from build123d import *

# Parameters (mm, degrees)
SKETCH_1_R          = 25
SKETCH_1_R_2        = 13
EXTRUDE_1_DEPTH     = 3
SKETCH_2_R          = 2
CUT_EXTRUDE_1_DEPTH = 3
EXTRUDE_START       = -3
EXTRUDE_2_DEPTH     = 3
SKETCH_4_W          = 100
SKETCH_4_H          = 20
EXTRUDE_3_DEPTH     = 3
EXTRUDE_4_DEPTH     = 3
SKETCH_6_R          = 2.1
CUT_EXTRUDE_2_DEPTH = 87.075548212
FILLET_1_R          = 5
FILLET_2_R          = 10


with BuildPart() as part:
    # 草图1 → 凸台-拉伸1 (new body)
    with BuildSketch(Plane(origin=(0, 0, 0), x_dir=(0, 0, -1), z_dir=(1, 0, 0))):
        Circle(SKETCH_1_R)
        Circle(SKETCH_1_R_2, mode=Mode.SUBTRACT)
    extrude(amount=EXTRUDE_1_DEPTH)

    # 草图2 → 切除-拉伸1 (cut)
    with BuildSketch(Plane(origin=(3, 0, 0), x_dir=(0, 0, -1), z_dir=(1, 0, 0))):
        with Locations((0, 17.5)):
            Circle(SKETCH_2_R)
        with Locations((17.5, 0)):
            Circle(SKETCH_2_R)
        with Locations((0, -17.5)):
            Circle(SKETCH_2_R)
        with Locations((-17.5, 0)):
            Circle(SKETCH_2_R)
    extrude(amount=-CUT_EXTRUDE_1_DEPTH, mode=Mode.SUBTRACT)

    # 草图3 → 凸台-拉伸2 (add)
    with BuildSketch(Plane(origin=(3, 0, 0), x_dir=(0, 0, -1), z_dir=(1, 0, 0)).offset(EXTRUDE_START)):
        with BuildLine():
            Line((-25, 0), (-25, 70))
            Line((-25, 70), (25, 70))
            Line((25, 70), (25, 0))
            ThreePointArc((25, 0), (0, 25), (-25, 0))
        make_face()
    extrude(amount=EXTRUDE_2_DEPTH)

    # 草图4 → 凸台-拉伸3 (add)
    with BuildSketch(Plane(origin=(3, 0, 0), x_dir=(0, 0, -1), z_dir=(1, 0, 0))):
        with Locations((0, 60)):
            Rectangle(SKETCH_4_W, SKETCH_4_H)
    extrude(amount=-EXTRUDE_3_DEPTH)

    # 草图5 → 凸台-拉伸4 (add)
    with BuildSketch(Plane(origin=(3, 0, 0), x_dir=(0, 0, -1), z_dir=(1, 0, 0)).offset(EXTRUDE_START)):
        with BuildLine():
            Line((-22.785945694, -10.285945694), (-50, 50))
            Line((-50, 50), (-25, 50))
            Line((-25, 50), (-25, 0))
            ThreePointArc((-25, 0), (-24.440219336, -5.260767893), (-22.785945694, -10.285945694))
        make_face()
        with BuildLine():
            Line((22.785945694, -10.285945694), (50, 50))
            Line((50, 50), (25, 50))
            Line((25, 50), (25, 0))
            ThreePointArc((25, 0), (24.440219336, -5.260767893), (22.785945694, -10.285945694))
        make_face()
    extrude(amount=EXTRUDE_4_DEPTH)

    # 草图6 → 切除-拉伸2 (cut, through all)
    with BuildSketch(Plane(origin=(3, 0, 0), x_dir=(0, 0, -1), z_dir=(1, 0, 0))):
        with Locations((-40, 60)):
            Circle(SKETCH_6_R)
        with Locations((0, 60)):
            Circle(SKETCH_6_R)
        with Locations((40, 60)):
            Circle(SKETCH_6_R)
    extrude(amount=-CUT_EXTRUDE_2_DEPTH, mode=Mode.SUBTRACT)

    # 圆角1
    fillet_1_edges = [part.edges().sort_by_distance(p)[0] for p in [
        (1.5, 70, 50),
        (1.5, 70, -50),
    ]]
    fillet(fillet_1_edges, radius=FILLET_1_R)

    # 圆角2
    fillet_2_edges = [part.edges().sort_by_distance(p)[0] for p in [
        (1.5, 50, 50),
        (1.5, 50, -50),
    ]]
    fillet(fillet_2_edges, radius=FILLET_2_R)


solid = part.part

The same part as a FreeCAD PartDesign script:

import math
import FreeCAD as App
import Part
import Sketcher
Q = App.Units.Quantity


def edges_at(feature, points):
    """Names of the edges that pass closest to the given points."""
    edges = feature.Shape.Edges
    near = lambda p: min(range(len(edges)), key=lambda i: edges[i].distToShape(Part.Vertex(*p))[0])
    return sorted({f"Edge{near(p) + 1}" for p in points})

doc = App.newDocument("Part")
body = doc.addObject("PartDesign::Body", "Body")

sketch1 = doc.addObject("Sketcher::SketchObject", "Sketch")
body.addObject(sketch1)
sketch1.AttachmentSupport = (doc.YZ_Plane, [""])
sketch1.MapMode = "FlatFace"
sketch1.addGeometry([
    Part.Circle(App.Vector(0, 0, 0), App.Vector(0, 0, 1), 25),
    Part.Circle(App.Vector(0, 0, 0), App.Vector(0, 0, 1), 13),
], False)
sketch1.addConstraint([
    Sketcher.Constraint("Coincident", 0, 3, -1, 1),
    Sketcher.Constraint("Coincident", 1, 3, -1, 1),
    Sketcher.Constraint("Diameter", 0, Q("50 mm")),
    Sketcher.Constraint("Diameter", 1, Q("26 mm")),
])
pad1 = doc.addObject("PartDesign::Pad", "Pad")
body.addObject(pad1)
pad1.Profile = sketch1
pad1.Length = 3

sketch2 = doc.addObject("Sketcher::SketchObject", "Sketch001")
body.addObject(sketch2)
sketch2.AttachmentSupport = (doc.YZ_Plane, [""])
sketch2.MapMode = "FlatFace"
sketch2.AttachmentOffset = App.Placement(App.Vector(0, 0, 3), App.Rotation())
sketch2.addGeometry([
    Part.Circle(App.Vector(17.5, 0, 0), App.Vector(0, 0, 1), 2),
    Part.Circle(App.Vector(0, -17.5, 0), App.Vector(0, 0, 1), 2),
    Part.Circle(App.Vector(-17.5, 0, 0), App.Vector(0, 0, 1), 2),
    Part.Circle(App.Vector(0, 17.5, 0), App.Vector(0, 0, 1), 2),
], False)
sketch2.addConstraint([
    Sketcher.Constraint("Equal", 0, 1),
    Sketcher.Constraint("Equal", 1, 2),
    Sketcher.Constraint("Equal", 2, 3),
    Sketcher.Constraint("Symmetric", 0, 3, 2, 3, -1, 1),
    Sketcher.Constraint("Symmetric", 1, 3, 3, 3, -1, 1),
    Sketcher.Constraint("PointOnObject", 0, 3, -1),
    Sketcher.Constraint("PointOnObject", 1, 3, -2),
    Sketcher.Constraint("Diameter", 0, Q("4 mm")),
    Sketcher.Constraint("DistanceX", 2, 3, 0, 3, Q("35 mm")),
    Sketcher.Constraint("DistanceY", 1, 3, 3, 3, Q("35 mm")),
])
pocket1 = doc.addObject("PartDesign::Pocket", "Pocket")
body.addObject(pocket1)
pocket1.Profile = sketch2
pocket1.Length = 3

sketch3 = doc.addObject("Sketcher::SketchObject", "Sketch002")
body.addObject(sketch3)
sketch3.AttachmentSupport = (doc.YZ_Plane, [""])
sketch3.MapMode = "FlatFace"
sketch3.addGeometry([
    Part.LineSegment(App.Vector(70, 25, 0), App.Vector(0, 25, 0)),
    Part.ArcOfCircle(Part.Circle(App.Vector(0, 0, 0), App.Vector(0, 0, 1), 25), math.radians(-90), math.radians(90)),
    Part.LineSegment(App.Vector(0, -25, 0), App.Vector(70, -25, 0)),
    Part.LineSegment(App.Vector(70, -25, 0), App.Vector(70, 25, 0)),
], False)
sketch3.addConstraint([
    Sketcher.Constraint("Tangent", 0, 2, 1, 2),
    Sketcher.Constraint("Tangent", 1, 1, 2, 1),
    Sketcher.Constraint("Coincident", 2, 2, 3, 1),
    Sketcher.Constraint("Coincident", 3, 2, 0, 1),
    Sketcher.Constraint("Horizontal", 0),
    Sketcher.Constraint("Horizontal", 2),
    Sketcher.Constraint("Vertical", 3),
    Sketcher.Constraint("Coincident", 1, 3, -1, 1),
    Sketcher.Constraint("Radius", 1, Q("25 mm")),
    Sketcher.Constraint("DistanceX", 0, 2, 0, 1, Q("70 mm")),
])
pad2 = doc.addObject("PartDesign::Pad", "Pad001")
body.addObject(pad2)
pad2.Profile = sketch3
pad2.Length = 3

sketch4 = doc.addObject("Sketcher::SketchObject", "Sketch003")
body.addObject(sketch4)
sketch4.AttachmentSupport = (doc.YZ_Plane, [""])
sketch4.MapMode = "FlatFace"
sketch4.AttachmentOffset = App.Placement(App.Vector(0, 0, 3), App.Rotation())
sketch4.addGeometry([
    Part.LineSegment(App.Vector(70, 50, 0), App.Vector(50, 50, 0)),
    Part.LineSegment(App.Vector(50, 50, 0), App.Vector(50, -50, 0)),
    Part.LineSegment(App.Vector(50, -50, 0), App.Vector(70, -50, 0)),
    Part.LineSegment(App.Vector(70, -50, 0), App.Vector(70, 50, 0)),
], False)
sketch4.addConstraint([
    Sketcher.Constraint("Coincident", 0, 2, 1, 1),
    Sketcher.Constraint("Coincident", 1, 2, 2, 1),
    Sketcher.Constraint("Coincident", 2, 2, 3, 1),
    Sketcher.Constraint("Coincident", 3, 2, 0, 1),
    Sketcher.Constraint("Horizontal", 0),
    Sketcher.Constraint("Vertical", 1),
    Sketcher.Constraint("Horizontal", 2),
    Sketcher.Constraint("Vertical", 3),
    Sketcher.Constraint("DistanceX", 0, 2, 0, 1, Q("20 mm")),
    Sketcher.Constraint("DistanceY", 1, 2, 1, 1, Q("100 mm")),
    Sketcher.Constraint("DistanceX", -1, 1, 0, 2, Q("50 mm")),
    Sketcher.Constraint("DistanceY", -1, 1, 0, 2, Q("50 mm")),
])
pad3 = doc.addObject("PartDesign::Pad", "Pad002")
body.addObject(pad3)
pad3.Profile = sketch4
pad3.Length = 3
pad3.Reversed = True

sketch5 = doc.addObject("Sketcher::SketchObject", "Sketch004")
body.addObject(sketch5)
sketch5.AttachmentSupport = (doc.YZ_Plane, [""])
sketch5.MapMode = "FlatFace"
sketch5.addGeometry([
    Part.LineSegment(App.Vector(50, 50, 0), App.Vector(-10.285946, 22.785946, 0)),
    Part.ArcOfCircle(Part.Circle(App.Vector(0, 0, 0), App.Vector(0, 0, 1), 25), math.radians(90), math.radians(114.295189)),
    Part.LineSegment(App.Vector(0, 25, 0), App.Vector(50, 25, 0)),
    Part.LineSegment(App.Vector(50, 25, 0), App.Vector(50, 50, 0)),
    Part.LineSegment(App.Vector(-10.285946, -22.785946, 0), App.Vector(50, -50, 0)),
    Part.LineSegment(App.Vector(50, -50, 0), App.Vector(50, -25, 0)),
    Part.LineSegment(App.Vector(50, -25, 0), App.Vector(0, -25, 0)),
    Part.ArcOfCircle(Part.Circle(App.Vector(0, 0, 0), App.Vector(0, 0, 1), 25), math.radians(-114.295189), math.radians(-90)),
], False)
sketch5.addConstraint([
    Sketcher.Constraint("Tangent", 0, 2, 1, 2),
    Sketcher.Constraint("Tangent", 1, 1, 2, 1),
    Sketcher.Constraint("Coincident", 2, 2, 3, 1),
    Sketcher.Constraint("Coincident", 3, 2, 0, 1),
    Sketcher.Constraint("Coincident", 4, 2, 5, 1),
    Sketcher.Constraint("Coincident", 5, 2, 6, 1),
    Sketcher.Constraint("Tangent", 6, 2, 7, 2),
    Sketcher.Constraint("Tangent", 7, 1, 4, 1),
    Sketcher.Constraint("Horizontal", 2),
    Sketcher.Constraint("Vertical", 3),
    Sketcher.Constraint("Vertical", 5),
    Sketcher.Constraint("Horizontal", 6),
    Sketcher.Constraint("Coincident", 1, 3, -1, 1),
    Sketcher.Constraint("Coincident", 7, 3, -1, 1),
    Sketcher.Constraint("Equal", 1, 7),
    Sketcher.Constraint("Symmetric", 3, 2, 4, 2, -1),
    Sketcher.Constraint("Radius", 1, Q("25 mm")),
    Sketcher.Constraint("DistanceX", 2, 1, 2, 2, Q("50 mm")),
    Sketcher.Constraint("DistanceY", 3, 1, 3, 2, Q("25 mm")),
])
pad4 = doc.addObject("PartDesign::Pad", "Pad003")
body.addObject(pad4)
pad4.Profile = sketch5
pad4.Length = 3

sketch6 = doc.addObject("Sketcher::SketchObject", "Sketch005")
body.addObject(sketch6)
sketch6.AttachmentSupport = (doc.YZ_Plane, [""])
sketch6.MapMode = "FlatFace"
sketch6.AttachmentOffset = App.Placement(App.Vector(0, 0, 3), App.Rotation())
sketch6.addGeometry([
    Part.Circle(App.Vector(60, 40, 0), App.Vector(0, 0, 1), 2.1),
    Part.Circle(App.Vector(60, 0, 0), App.Vector(0, 0, 1), 2.1),
    Part.Circle(App.Vector(60, -40, 0), App.Vector(0, 0, 1), 2.1),
], False)
sketch6.addConstraint([
    Sketcher.Constraint("Equal", 0, 1),
    Sketcher.Constraint("Equal", 1, 2),
    Sketcher.Constraint("Symmetric", 0, 3, 2, 3, -1),
    Sketcher.Constraint("PointOnObject", 1, 3, -1),
    Sketcher.Constraint("Vertical", 0, 3, 1, 3),
    Sketcher.Constraint("Diameter", 0, Q("4.2 mm")),
    Sketcher.Constraint("DistanceX", -1, 1, 0, 3, Q("60 mm")),
    Sketcher.Constraint("DistanceY", -1, 1, 0, 3, Q("40 mm")),
])
pocket2 = doc.addObject("PartDesign::Pocket", "Pocket001")
body.addObject(pocket2)
pocket2.Profile = sketch6
pocket2.Type = "ThroughAll"
doc.recompute()

fillet = doc.addObject("PartDesign::Fillet", "Fillet")
body.addObject(fillet)
fillet.Base = (pocket2, edges_at(pocket2, [(1.5, 70, 50), (1.5, 70, -50)]))
fillet.Radius = 5
doc.recompute()

fillet2 = doc.addObject("PartDesign::Fillet", "Fillet001")
body.addObject(fillet2)
fillet2.Base = (fillet, edges_at(fillet, [(1.5, 50, 50), (1.5, 50, -50)]))
fillet2.Radius = 10

doc.recompute()
